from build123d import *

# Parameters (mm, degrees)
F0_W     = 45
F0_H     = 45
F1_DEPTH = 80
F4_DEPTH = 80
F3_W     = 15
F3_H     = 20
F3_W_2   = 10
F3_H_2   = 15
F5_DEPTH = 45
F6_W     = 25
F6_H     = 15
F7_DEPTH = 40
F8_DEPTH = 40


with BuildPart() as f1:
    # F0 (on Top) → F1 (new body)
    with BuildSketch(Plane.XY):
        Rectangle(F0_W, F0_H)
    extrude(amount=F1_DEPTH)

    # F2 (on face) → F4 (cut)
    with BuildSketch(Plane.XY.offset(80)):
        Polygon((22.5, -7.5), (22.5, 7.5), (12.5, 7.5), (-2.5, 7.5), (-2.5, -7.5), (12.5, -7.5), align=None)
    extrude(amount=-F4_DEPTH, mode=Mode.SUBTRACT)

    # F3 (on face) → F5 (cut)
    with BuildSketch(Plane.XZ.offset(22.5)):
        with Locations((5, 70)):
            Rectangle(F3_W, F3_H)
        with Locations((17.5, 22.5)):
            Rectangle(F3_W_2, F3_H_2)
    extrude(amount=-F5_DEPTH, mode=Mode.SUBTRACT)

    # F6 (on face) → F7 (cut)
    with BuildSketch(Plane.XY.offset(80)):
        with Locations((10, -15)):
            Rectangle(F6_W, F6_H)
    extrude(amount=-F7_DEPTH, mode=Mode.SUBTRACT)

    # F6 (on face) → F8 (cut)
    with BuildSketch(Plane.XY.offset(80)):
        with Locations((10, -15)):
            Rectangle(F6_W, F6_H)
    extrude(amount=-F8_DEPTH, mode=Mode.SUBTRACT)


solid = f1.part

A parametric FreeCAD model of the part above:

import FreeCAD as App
import Part
import Sketcher

V = App.Vector


def add_polygon(sketch, points):
    """Adds a closed chain of lines whose ends are joined by coincident constraints."""
    first, n = sketch.GeometryCount, len(points)
    for a, b in zip(points, points[1:] + points[:1]):
        sketch.addGeometry(Part.LineSegment(App.Vector(*a, 0), App.Vector(*b, 0)), False)
    for i in range(n):
        sketch.addConstraint(Sketcher.Constraint("Coincident", first + i, 2, first + (i + 1) % n, 1))

doc = App.newDocument("Part")
params = doc.addObject("Spreadsheet::Sheet", "Params")
for row, (alias, value) in enumerate([
    ("sketch1_width", "45 mm"),
    ("pad1_length", "80 mm"),
    ("sketch2_width", "25 mm"),
    ("sketch2_height", "15 mm"),
    ("pocket1_length", "80 mm"),
    ("sketch3_width", "15 mm"),
    ("sketch3_width2", "10 mm"),
    ("sketch3_height", "20 mm"),
    ("pocket2_length", "45 mm"),
    ("sketch4_width", "25 mm"),
    ("sketch4_height", "15 mm"),
    ("pocket3_length", "40 mm"),
    ("sketch5_width", "25 mm"),
    ("sketch5_height", "15 mm"),
    ("pocket4_length", "40 mm"),
], start=1):
    params.set(f"A{row}", alias)
    params.set(f"B{row}", "=" + value)
    params.setAlias(f"B{row}", alias)

body = doc.addObject("PartDesign::Body", "Body")

# Sketch on XY plane
sketch1 = doc.addObject("Sketcher::SketchObject", "Sketch")
body.addObject(sketch1)
sketch1.AttachmentSupport = (doc.XY_Plane, [""])
sketch1.MapMode = "FlatFace"
add_polygon(sketch1, [(-22, 22), (-22, -22), (22, -22), (22, 22)])  # lines 0-3
sketch1.addConstraint([
    Sketcher.Constraint("Vertical", 0),
    Sketcher.Constraint("Horizontal", 1),
    Sketcher.Constraint("Vertical", 2),
    Sketcher.Constraint("Horizontal", 3),
    Sketcher.Constraint("Symmetric", 0, 2, 2, 2, -1, 1),
    Sketcher.Constraint("Equal", 3, 0),
    Sketcher.Constraint("DistanceX", 1, 1, 1, 2, 45.0),
])
sketch1.setExpression("Constraints[10]", "Params.sketch1_width")
pad1 = doc.addObject("PartDesign::Pad", "Pad")
body.addObject(pad1)
pad1.Profile = sketch1
pad1.setExpression("Length", "Params.pad1_length")

# Sketch on XY plane
sketch2 = doc.addObject("Sketcher::SketchObject", "Sketch001")
body.addObject(sketch2)
sketch2.AttachmentSupport = (doc.XY_Plane, [""])
sketch2.MapMode = "FlatFace"
sketch2.AttachmentOffset = App.Placement(V(0, 0, 80), App.Rotation())
add_polygon(sketch2, [(22, -8), (22, 8), (-2, 8), (-2, -8)])  # lines 0-3
sketch2.addConstraint([
    Sketcher.Constraint("Vertical", 0),
    Sketcher.Constraint("Horizontal", 1),
    Sketcher.Constraint("Vertical", 2),
    Sketcher.Constraint("Horizontal", 3),
    Sketcher.Constraint("DistanceX", 1, 2, 1, 1, 25.0),
    Sketcher.Constraint("DistanceY", 0, 1, 0, 2, 15.0),
    Sketcher.Constraint("DistanceX", -1, 1, 0, 2, 22.5),
    Sketcher.Constraint("DistanceY", -1, 1, 0, 2, 7.5),
])
sketch2.setExpression("Constraints[8]", "Params.sketch2_width")
sketch2.setExpression("Constraints[9]", "Params.sketch2_height")
pocket1 = doc.addObject("PartDesign::Pocket", "Pocket")
body.addObject(pocket1)
pocket1.Profile = sketch2
pocket1.setExpression("Length", "Params.pocket1_length")

# Sketch on XZ plane
sketch3 = doc.addObject("Sketcher::SketchObject", "Sketch002")
body.addObject(sketch3)
sketch3.AttachmentSupport = (doc.XZ_Plane, [""])
sketch3.MapMode = "FlatFace"
sketch3.AttachmentOffset = App.Placement(V(0, 0, 22.5), App.Rotation())
add_polygon(sketch3, [(-2, 80), (-2, 60), (12, 60), (12, 80)])  # lines 0-3
add_polygon(sketch3, [(12, 30), (12, 15), (22, 15), (22, 30)])  # lines 4-7
sketch3.addConstraint([
    Sketcher.Constraint("Vertical", 0),
    Sketcher.Constraint("Horizontal", 1),
    Sketcher.Constraint("Vertical", 2),
    Sketcher.Constraint("Horizontal", 3),
    Sketcher.Constraint("Vertical", 4),
    Sketcher.Constraint("Horizontal", 5),
    Sketcher.Constraint("Vertical", 6),
    Sketcher.Constraint("Horizontal", 7),
    Sketcher.Constraint("Vertical", 2, 2, 4, 2),
    Sketcher.Constraint("Equal", 3, 4),
    Sketcher.Constraint("DistanceX", 1, 1, 1, 2, 15.0),
    Sketcher.Constraint("DistanceX", 5, 1, 5, 2, 10.0),
    Sketcher.Constraint("DistanceY", 0, 2, 0, 1, 20.0),
    Sketcher.Constraint("DistanceY", -1, 1, 0, 2, 60.0),
    Sketcher.Constraint("DistanceY", -1, 1, 4, 2, 15.0),
    Sketcher.Constraint("DistanceX", 0, 2, -1, 1, 2.5),
])
sketch3.setExpression("Constraints[18]", "Params.sketch3_width")
sketch3.setExpression("Constraints[19]", "Params.sketch3_width2")
sketch3.setExpression("Constraints[20]", "Params.sketch3_height")
pocket2 = doc.addObject("PartDesign::Pocket", "Pocket001")
body.addObject(pocket2)
pocket2.Profile = sketch3
pocket2.setExpression("Length", "Params.pocket2_length")

# Sketch on XY plane
sketch4 = doc.addObject("Sketcher::SketchObject", "Sketch003")
body.addObject(sketch4)
sketch4.AttachmentSupport = (doc.XY_Plane, [""])
sketch4.MapMode = "FlatFace"
sketch4.AttachmentOffset = App.Placement(V(0, 0, 80), App.Rotation())
add_polygon(sketch4, [(-2, -8), (-2, -22), (22, -22), (22, -8)])  # lines 0-3
sketch4.addConstraint([
    Sketcher.Constraint("Vertical", 0),
    Sketcher.Constraint("Horizontal", 1),
    Sketcher.Constraint("Vertical", 2),
    Sketcher.Constraint("Horizontal", 3),
    Sketcher.Constraint("DistanceX", 1, 1, 1, 2, 25.0),
    Sketcher.Constraint("DistanceY", 0, 2, 0, 1, 15.0),
    Sketcher.Constraint("DistanceX", 0, 2, -1, 1, 2.5),
    Sketcher.Constraint("DistanceY", 0, 2, -1, 1, 22.5),
])
sketch4.setExpression("Constraints[8]", "Params.sketch4_width")
sketch4.setExpression("Constraints[9]", "Params.sketch4_height")
pocket3 = doc.addObject("PartDesign::Pocket", "Pocket002")
body.addObject(pocket3)
pocket3.Profile = sketch4
pocket3.setExpression("Length", "Params.pocket3_length")

# Sketch on XY plane
sketch5 = doc.addObject("Sketcher::SketchObject", "Sketch004")
body.addObject(sketch5)
sketch5.AttachmentSupport = (doc.XY_Plane, [""])
sketch5.MapMode = "FlatFace"
sketch5.AttachmentOffset = App.Placement(V(0, 0, 80), App.Rotation())
add_polygon(sketch5, [(-2, -8), (-2, -22), (22, -22), (22, -8)])  # lines 0-3
sketch5.addConstraint([
    Sketcher.Constraint("Vertical", 0),
    Sketcher.Constraint("Horizontal", 1),
    Sketcher.Constraint("Vertical", 2),
    Sketcher.Constraint("Horizontal", 3),
    Sketcher.Constraint("DistanceX", 1, 1, 1, 2, 25.0),
    Sketcher.Constraint("DistanceY", 0, 2, 0, 1, 15.0),
    Sketcher.Constraint("DistanceX", 0, 2, -1, 1, 2.5),
    Sketcher.Constraint("DistanceY", 0, 2, -1, 1, 22.5),
])
sketch5.setExpression("Constraints[8]", "Params.sketch5_width")
sketch5.setExpression("Constraints[9]", "Params.sketch5_height")
pocket4 = doc.addObject("PartDesign::Pocket", "Pocket003")
body.addObject(pocket4)
pocket4.Profile = sketch5
pocket4.setExpression("Length", "Params.pocket4_length")

doc.recompute()
